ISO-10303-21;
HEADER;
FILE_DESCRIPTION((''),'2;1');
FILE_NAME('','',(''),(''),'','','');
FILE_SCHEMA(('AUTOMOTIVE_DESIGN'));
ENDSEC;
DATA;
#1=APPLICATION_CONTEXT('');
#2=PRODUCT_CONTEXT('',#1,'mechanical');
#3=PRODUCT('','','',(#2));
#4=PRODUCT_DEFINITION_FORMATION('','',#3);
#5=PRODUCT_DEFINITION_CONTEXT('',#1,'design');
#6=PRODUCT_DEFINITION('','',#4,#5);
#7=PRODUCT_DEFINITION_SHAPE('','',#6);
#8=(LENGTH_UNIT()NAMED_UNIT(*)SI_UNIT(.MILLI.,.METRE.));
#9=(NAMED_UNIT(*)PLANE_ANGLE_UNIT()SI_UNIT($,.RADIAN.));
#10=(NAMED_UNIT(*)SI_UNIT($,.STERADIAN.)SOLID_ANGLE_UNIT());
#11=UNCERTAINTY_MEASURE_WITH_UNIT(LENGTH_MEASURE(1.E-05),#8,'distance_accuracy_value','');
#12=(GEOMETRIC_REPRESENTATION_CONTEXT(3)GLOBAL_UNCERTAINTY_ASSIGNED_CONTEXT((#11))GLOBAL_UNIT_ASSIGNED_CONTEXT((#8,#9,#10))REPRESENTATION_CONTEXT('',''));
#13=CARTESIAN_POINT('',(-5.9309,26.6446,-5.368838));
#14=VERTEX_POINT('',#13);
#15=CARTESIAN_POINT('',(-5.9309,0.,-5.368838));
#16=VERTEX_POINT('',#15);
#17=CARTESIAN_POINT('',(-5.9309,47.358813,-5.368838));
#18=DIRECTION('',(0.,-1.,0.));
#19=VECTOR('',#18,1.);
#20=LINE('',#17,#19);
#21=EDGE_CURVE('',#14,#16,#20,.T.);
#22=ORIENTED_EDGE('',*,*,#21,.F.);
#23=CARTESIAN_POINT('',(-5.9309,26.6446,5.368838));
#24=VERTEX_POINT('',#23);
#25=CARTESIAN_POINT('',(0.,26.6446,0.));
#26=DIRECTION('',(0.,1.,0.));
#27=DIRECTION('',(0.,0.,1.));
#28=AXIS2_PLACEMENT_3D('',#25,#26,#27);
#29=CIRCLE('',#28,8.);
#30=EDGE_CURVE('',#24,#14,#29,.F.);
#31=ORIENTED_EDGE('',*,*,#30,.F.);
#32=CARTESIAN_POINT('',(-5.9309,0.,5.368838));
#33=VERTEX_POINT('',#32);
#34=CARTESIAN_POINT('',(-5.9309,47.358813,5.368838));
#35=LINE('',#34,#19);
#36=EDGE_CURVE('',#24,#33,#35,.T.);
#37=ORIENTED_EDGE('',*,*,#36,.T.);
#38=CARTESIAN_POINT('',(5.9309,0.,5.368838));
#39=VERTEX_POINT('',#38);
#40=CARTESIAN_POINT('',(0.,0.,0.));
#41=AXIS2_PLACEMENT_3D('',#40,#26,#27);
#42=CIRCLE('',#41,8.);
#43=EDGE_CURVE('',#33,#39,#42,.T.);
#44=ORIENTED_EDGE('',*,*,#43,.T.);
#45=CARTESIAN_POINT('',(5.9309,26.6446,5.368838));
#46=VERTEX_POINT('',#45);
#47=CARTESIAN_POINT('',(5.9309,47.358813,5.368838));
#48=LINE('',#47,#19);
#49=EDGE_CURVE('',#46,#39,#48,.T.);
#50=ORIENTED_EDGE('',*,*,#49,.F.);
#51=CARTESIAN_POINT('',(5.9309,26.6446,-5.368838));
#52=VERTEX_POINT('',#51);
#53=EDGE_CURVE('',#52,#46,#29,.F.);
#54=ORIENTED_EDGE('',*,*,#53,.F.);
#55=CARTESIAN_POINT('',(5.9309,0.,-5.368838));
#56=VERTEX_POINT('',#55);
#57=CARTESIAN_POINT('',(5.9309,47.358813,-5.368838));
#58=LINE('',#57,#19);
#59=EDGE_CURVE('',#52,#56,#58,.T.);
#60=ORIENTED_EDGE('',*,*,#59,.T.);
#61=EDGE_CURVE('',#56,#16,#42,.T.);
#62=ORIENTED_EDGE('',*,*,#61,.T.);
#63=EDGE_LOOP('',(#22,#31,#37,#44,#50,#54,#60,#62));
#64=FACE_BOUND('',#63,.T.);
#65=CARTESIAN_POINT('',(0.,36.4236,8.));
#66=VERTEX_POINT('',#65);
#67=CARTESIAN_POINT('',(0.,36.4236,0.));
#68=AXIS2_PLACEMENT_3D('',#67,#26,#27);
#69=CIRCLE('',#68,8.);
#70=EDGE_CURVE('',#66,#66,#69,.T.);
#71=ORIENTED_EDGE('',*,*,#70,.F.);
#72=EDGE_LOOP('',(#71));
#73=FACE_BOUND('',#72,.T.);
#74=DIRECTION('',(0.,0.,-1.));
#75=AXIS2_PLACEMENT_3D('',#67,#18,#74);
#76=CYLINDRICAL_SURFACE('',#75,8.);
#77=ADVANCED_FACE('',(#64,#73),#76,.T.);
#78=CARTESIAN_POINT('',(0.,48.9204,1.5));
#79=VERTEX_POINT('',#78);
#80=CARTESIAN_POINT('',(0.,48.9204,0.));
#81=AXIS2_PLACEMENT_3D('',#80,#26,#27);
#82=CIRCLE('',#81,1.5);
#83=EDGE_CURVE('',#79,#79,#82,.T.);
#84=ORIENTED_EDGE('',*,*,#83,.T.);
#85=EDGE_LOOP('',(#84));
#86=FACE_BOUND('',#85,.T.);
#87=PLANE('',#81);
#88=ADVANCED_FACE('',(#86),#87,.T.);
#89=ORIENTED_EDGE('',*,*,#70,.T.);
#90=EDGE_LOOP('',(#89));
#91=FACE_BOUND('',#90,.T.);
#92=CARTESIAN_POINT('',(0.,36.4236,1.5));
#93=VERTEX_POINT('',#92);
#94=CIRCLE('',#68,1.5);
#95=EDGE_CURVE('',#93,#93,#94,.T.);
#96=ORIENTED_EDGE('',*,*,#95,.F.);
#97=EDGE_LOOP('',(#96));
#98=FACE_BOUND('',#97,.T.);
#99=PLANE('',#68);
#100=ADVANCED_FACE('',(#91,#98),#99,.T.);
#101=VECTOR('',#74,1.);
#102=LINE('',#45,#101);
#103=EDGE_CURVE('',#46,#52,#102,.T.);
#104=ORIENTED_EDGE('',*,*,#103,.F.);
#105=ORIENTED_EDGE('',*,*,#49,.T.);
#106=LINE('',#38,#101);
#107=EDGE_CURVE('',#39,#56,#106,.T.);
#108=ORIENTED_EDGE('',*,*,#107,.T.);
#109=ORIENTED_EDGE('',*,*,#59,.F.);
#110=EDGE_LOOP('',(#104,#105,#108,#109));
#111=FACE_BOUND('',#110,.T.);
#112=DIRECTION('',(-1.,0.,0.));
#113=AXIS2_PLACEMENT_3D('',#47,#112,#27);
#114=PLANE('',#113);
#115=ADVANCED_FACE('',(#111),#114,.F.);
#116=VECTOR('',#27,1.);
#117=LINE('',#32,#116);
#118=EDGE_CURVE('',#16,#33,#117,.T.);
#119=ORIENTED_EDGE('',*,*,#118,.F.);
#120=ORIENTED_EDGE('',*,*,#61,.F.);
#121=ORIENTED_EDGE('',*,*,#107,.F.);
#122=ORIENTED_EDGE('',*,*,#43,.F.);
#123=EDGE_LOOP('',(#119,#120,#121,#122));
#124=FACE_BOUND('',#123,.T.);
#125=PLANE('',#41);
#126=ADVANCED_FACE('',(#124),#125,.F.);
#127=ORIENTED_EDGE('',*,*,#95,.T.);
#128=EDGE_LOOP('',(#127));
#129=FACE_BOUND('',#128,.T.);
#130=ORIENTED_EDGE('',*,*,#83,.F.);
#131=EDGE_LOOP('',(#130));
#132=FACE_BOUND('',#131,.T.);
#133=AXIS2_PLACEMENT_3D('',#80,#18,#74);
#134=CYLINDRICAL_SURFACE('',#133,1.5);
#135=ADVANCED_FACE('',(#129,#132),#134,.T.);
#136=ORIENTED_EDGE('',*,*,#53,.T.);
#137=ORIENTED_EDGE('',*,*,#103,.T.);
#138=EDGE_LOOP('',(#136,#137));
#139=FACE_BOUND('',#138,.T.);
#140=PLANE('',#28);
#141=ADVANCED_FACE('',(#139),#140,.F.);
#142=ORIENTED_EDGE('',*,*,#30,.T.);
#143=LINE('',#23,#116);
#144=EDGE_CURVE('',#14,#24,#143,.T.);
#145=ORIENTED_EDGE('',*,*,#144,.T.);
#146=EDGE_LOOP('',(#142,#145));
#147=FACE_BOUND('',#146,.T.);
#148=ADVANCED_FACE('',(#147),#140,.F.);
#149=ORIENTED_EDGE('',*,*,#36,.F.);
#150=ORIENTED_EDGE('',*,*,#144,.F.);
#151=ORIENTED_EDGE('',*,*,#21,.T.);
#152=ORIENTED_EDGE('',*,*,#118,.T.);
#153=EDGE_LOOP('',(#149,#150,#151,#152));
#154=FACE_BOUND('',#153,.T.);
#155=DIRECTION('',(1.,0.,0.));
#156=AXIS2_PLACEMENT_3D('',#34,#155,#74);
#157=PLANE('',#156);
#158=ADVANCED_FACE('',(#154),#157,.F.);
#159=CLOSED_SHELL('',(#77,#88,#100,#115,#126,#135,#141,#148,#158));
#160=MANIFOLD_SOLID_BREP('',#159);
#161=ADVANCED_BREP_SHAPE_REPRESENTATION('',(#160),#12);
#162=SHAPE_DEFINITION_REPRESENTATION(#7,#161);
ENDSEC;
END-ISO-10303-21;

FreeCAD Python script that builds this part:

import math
import FreeCAD as App
import Part
import Sketcher
from FreeCAD import Vector
Q = App.Units.Quantity

doc = App.newDocument("Part")
body = doc.addObject("PartDesign::Body", "Body")

sketch1 = body.newObject("Sketcher::SketchObject", "Sketch")
sketch1.AttachmentSupport = (doc.getObject("XZ_Plane"), [""])
sketch1.MapMode = "FlatFace"
sketch1.addGeometry(Part.Circle(Vector(0, 0, 0), Vector(0, 0, 1), 8), False)
sketch1.addConstraint(Sketcher.Constraint("Coincident", 0, 3, -1, 1))
sketch1.addConstraint(Sketcher.Constraint("Diameter", 0, Q("16 mm")))
pad1 = body.newObject("PartDesign::Pad", "Pad")
pad1.Profile = sketch1
pad1.Length = Q("1.434 in")
pad1.Reversed = True

sketch2 = body.newObject("Sketcher::SketchObject", "Sketch001")
sketch2.AttachmentSupport = (doc.getObject("XZ_Plane"), [""])
sketch2.MapMode = "FlatFace"
sketch2.addGeometry(Part.LineSegment(Vector(5.9309, 5.368838, 0), Vector(5.9309, -5.368838, 0)), False)
sketch2.addGeometry(Part.ArcOfCircle(Part.Circle(Vector(0, 0, 0), Vector(0, 0, 1), 8), math.radians(-42.152391), math.radians(42.152391)), False)
sketch2.addGeometry(Part.LineSegment(Vector(-5.9309, -5.368838, 0), Vector(-5.9309, 5.368838, 0)), False)
sketch2.addGeometry(Part.ArcOfCircle(Part.Circle(Vector(0, 0, 0), Vector(0, 0, 1), 8), math.radians(137.847609), math.radians(222.152391)), False)
sketch2.addConstraint(Sketcher.Constraint("Coincident", 0, 1, 1, 2))
sketch2.addConstraint(Sketcher.Constraint("Coincident", 1, 1, 0, 2))
sketch2.addConstraint(Sketcher.Constraint("Coincident", 2, 1, 3, 2))
sketch2.addConstraint(Sketcher.Constraint("Coincident", 3, 1, 2, 2))
sketch2.addConstraint(Sketcher.Constraint("Vertical", 0))
sketch2.addConstraint(Sketcher.Constraint("Vertical", 2))
sketch2.addConstraint(Sketcher.Constraint("Coincident", 1, 3, -1, 1))
sketch2.addConstraint(Sketcher.Constraint("Coincident", 3, 3, -1, 1))
sketch2.addConstraint(Sketcher.Constraint("Equal", 1, 3))
sketch2.addConstraint(Sketcher.Constraint("Horizontal", 1, 1, 2, 1))
sketch2.addConstraint(Sketcher.Constraint("Radius", 1, Q("8 mm")))
sketch2.addConstraint(Sketcher.Constraint("DistanceX", 2, 1, 1, 1, Q("0.467 in")))
pocket1 = body.newObject("PartDesign::Pocket", "Pocket")
pocket1.Profile = sketch2
pocket1.Length = Q("1.049 in")

sketch3 = body.newObject("Sketcher::SketchObject", "Sketch002")
sketch3.AttachmentSupport = (doc.getObject("XZ_Plane"), [""])
sketch3.MapMode = "FlatFace"
sketch3.AttachmentOffset = App.Placement(Vector(0, 0, -1.434 * 25.4), App.Rotation())
sketch3.addGeometry(Part.Circle(Vector(0, 0, 0), Vector(0, 0, 1), 1.5), False)
sketch3.addConstraint(Sketcher.Constraint("Coincident", 0, 3, -1, 1))
sketch3.addConstraint(Sketcher.Constraint("Diameter", 0, Q("3 mm")))
pad2 = body.newObject("PartDesign::Pad", "Pad001")
pad2.Profile = sketch3
pad2.Length = Q("0.492 in")
pad2.Reversed = True

doc.recompute()
